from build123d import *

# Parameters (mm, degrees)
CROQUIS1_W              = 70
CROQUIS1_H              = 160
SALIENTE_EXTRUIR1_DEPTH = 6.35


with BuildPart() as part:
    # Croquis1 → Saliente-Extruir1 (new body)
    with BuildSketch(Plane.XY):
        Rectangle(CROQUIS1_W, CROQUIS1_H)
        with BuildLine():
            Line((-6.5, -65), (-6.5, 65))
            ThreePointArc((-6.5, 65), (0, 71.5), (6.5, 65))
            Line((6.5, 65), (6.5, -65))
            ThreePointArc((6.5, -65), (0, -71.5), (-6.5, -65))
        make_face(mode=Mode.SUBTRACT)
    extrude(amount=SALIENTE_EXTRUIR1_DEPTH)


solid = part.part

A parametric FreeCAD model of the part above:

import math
import FreeCAD as App
import Part
import Sketcher

V = App.Vector
Q = App.Units.Quantity


def add_polygon(sketch, points):
    """Adds a closed chain of lines whose ends are joined by coincident constraints."""
    first, n = sketch.GeometryCount, len(points)
    for a, b in zip(points, points[1:] + points[:1]):
        sketch.addGeometry(Part.LineSegment(App.Vector(*a, 0), App.Vector(*b, 0)), False)
    for i in range(n):
        sketch.addConstraint(Sketcher.Constraint("Coincident", first + i, 2, first + (i + 1) % n, 1))

doc = App.newDocument("Part")
body = doc.addObject("PartDesign::Body", "Body")

sketch1 = body.newObject("Sketcher::SketchObject", "Sketch")
sketch1.AttachmentSupport = (doc.getObject("XY_Plane"), [""])
sketch1.MapMode = "FlatFace"
add_polygon(sketch1, [(-35, 80), (-35, -80), (35, -80), (35, 80)])
sketch1.addGeometry(Part.ArcOfCircle(Part.Circle(V(0, -65, 0), V(0, 0, 1), 6), math.radians(180), math.radians(360)), False)
sketch1.addGeometry(Part.LineSegment(V(-6, -65, 0), V(-6, 65, 0)), False)
sketch1.addGeometry(Part.ArcOfCircle(Part.Circle(V(0, 65, 0), V(0, 0, 1), 6), math.radians(0), math.radians(180)), False)
sketch1.addGeometry(Part.LineSegment(V(6, 65, 0), V(6, -65, 0)), False)
sketch1.addConstraint(Sketcher.Constraint("Tangent", 4, 1, 5, 1))
sketch1.addConstraint(Sketcher.Constraint("Tangent", 5, 2, 6, 2))
sketch1.addConstraint(Sketcher.Constraint("Tangent", 6, 1, 7, 1))
sketch1.addConstraint(Sketcher.Constraint("Tangent", 7, 2, 4, 2))
sketch1.addConstraint(Sketcher.Constraint("Vertical", 0))
sketch1.addConstraint(Sketcher.Constraint("Horizontal", 1))
sketch1.addConstraint(Sketcher.Constraint("Vertical", 2))
sketch1.addConstraint(Sketcher.Constraint("Horizontal", 3))
sketch1.addConstraint(Sketcher.Constraint("Vertical", 5))
sketch1.addConstraint(Sketcher.Constraint("Vertical", 7))
sketch1.addConstraint(Sketcher.Constraint("Symmetric", 4, 3, 6, 3, -1, 1))
sketch1.addConstraint(Sketcher.Constraint("Symmetric", 0, 2, 2, 2, -1, 1))
sketch1.addConstraint(Sketcher.Constraint("Radius", 4, Q("6.5 mm")))
sketch1.addConstraint(Sketcher.Constraint("DistanceX", 1, 1, 1, 2, Q("70 mm")))
sketch1.addConstraint(Sketcher.Constraint("DistanceY", 0, 2, 0, 1, Q("160 mm")))
sketch1.addConstraint(Sketcher.Constraint("DistanceY", 5, 1, 5, 2, Q("130 mm")))
pad1 = body.newObject("PartDesign::Pad", "Pad")
pad1.Profile = sketch1
pad1.Length = 6.35

doc.recompute()
